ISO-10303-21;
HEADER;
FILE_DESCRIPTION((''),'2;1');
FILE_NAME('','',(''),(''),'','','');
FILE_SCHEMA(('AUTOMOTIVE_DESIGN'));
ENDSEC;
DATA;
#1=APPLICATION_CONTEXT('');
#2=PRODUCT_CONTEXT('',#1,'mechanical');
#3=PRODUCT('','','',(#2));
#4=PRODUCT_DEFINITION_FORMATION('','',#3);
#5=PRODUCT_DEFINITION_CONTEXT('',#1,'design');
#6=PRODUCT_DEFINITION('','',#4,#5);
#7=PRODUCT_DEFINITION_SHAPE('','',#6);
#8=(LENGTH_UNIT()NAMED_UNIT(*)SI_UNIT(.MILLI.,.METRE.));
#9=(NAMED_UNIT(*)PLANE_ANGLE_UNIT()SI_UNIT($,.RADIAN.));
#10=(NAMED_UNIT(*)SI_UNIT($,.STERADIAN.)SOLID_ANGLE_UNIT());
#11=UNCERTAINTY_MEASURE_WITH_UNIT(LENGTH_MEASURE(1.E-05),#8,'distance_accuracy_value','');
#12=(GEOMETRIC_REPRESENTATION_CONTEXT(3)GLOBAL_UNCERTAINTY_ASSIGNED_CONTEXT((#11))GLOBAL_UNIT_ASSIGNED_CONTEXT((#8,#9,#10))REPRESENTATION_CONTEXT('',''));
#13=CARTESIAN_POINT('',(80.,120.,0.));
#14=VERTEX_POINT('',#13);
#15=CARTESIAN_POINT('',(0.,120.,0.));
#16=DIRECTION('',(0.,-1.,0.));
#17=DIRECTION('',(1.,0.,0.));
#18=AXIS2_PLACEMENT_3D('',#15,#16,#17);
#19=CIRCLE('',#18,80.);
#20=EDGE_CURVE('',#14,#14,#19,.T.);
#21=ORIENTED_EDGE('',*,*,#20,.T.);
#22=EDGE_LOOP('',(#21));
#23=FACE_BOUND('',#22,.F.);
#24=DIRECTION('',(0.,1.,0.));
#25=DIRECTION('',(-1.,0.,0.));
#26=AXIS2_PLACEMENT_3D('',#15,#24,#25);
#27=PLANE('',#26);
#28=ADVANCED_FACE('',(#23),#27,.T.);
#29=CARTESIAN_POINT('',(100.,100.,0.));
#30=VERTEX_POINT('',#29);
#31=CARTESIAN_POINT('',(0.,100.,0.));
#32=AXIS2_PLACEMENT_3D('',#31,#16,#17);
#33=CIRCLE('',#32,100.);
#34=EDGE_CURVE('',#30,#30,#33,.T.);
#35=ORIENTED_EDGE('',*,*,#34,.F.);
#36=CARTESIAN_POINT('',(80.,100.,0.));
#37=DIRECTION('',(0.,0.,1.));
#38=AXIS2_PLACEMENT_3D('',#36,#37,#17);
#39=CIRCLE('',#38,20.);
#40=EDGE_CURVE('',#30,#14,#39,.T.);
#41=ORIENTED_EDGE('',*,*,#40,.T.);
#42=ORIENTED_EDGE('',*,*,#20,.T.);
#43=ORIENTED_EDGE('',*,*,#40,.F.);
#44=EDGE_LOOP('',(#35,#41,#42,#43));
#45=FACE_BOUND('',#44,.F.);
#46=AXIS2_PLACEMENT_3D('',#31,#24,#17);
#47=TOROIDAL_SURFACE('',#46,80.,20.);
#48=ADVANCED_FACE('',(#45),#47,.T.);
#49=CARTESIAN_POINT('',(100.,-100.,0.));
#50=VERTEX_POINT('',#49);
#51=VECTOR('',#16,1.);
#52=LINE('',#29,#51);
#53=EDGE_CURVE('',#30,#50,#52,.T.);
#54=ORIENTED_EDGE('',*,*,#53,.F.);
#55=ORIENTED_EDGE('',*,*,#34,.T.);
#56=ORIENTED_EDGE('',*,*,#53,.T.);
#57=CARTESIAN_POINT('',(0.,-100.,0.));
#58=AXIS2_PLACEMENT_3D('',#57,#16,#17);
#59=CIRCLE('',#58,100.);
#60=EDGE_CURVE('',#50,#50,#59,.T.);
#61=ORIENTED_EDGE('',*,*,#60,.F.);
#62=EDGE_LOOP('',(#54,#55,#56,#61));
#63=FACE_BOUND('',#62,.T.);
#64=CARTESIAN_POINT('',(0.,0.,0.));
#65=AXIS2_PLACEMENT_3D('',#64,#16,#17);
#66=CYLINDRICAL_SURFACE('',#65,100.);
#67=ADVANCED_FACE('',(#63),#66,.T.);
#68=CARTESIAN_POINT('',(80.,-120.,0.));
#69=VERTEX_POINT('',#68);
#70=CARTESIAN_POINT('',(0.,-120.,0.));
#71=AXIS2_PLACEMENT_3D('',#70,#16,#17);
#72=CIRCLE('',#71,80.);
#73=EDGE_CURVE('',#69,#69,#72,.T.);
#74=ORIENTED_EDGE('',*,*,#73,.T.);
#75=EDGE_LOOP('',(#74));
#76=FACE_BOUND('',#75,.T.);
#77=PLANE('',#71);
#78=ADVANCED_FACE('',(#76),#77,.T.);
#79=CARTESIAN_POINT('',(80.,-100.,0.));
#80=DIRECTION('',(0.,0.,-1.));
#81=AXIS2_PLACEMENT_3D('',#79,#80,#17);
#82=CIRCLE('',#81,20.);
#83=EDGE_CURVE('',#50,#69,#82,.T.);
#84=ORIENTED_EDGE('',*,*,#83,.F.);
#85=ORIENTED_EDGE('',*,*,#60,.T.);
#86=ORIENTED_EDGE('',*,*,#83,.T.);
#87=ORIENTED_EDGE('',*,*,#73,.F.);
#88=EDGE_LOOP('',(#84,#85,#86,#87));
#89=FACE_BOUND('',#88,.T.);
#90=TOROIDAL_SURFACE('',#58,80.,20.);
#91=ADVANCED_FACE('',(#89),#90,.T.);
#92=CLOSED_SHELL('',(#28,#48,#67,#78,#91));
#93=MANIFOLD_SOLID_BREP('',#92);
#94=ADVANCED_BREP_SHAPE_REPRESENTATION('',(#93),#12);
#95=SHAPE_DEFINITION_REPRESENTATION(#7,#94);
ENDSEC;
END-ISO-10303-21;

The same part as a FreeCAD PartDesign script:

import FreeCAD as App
import Part
import Sketcher


def edges_at(feature, points):
    """Names of the edges that pass closest to the given points."""
    edges = feature.Shape.Edges
    near = lambda p: min(range(len(edges)), key=lambda i: edges[i].distToShape(Part.Vertex(*p))[0])
    return sorted({f"Edge{near(p) + 1}" for p in points})

doc = App.newDocument("Part")
params = doc.addObject("Spreadsheet::Sheet", "Params")
for row, (alias, value) in enumerate([
    ("sketch1_diameter", "200 mm"),
    ("pad1_length", "120 mm"),
    ("fillet_radius", "20 mm"),
], start=1):
    params.set(f"A{row}", alias)
    params.set(f"B{row}", "=" + value)
    params.setAlias(f"B{row}", alias)

body = doc.addObject("PartDesign::Body", "Body")

# Sketch on XZ plane
sketch1 = body.newObject("Sketcher::SketchObject", "Sketch")
sketch1.AttachmentSupport = (doc.getObject("XZ_Plane"), [""])
sketch1.MapMode = "FlatFace"
sketch1.addGeometry(Part.Circle(App.Vector(0, 0, 0), App.Vector(0, 0, 1), 100), False)
sketch1.addConstraint([
    Sketcher.Constraint("Coincident", 0, 3, -1, 1),
    Sketcher.Constraint("Diameter", 0, 200.0),
])
sketch1.setExpression("Constraints[1]", "Params.sketch1_diameter")
pad1 = body.newObject("PartDesign::Pad", "Pad")
pad1.Profile = sketch1
pad1.setExpression("Length", "Params.pad1_length")
doc.recompute()

fillet = body.newObject("PartDesign::Fillet", "Fillet")
fillet.Base = (pad1, edges_at(pad1, [(-100, -120, 0)]))
fillet.setExpression("Radius", "Params.fillet_radius")
body2 = doc.addObject("PartDesign::Body", "Body001")
doc.recompute()

body2.BaseFeature = body
doc.recompute()

mirroring = doc.addObject("Part::Mirroring", "Mirroring")
mirroring.Source = body
mirroring.Base = App.Vector(0, 0, 0)
mirroring.Normal = App.Vector(0, 1, 0)
body3 = doc.addObject("PartDesign::Body", "Body002")
body3.BaseFeature = mirroring
boolean = body2.newObject("PartDesign::Boolean", "Boolean")
boolean.Type = "Fuse"
boolean.addObjects([body3])
doc.recompute()
mirroring.Visibility = False

doc.recompute()
